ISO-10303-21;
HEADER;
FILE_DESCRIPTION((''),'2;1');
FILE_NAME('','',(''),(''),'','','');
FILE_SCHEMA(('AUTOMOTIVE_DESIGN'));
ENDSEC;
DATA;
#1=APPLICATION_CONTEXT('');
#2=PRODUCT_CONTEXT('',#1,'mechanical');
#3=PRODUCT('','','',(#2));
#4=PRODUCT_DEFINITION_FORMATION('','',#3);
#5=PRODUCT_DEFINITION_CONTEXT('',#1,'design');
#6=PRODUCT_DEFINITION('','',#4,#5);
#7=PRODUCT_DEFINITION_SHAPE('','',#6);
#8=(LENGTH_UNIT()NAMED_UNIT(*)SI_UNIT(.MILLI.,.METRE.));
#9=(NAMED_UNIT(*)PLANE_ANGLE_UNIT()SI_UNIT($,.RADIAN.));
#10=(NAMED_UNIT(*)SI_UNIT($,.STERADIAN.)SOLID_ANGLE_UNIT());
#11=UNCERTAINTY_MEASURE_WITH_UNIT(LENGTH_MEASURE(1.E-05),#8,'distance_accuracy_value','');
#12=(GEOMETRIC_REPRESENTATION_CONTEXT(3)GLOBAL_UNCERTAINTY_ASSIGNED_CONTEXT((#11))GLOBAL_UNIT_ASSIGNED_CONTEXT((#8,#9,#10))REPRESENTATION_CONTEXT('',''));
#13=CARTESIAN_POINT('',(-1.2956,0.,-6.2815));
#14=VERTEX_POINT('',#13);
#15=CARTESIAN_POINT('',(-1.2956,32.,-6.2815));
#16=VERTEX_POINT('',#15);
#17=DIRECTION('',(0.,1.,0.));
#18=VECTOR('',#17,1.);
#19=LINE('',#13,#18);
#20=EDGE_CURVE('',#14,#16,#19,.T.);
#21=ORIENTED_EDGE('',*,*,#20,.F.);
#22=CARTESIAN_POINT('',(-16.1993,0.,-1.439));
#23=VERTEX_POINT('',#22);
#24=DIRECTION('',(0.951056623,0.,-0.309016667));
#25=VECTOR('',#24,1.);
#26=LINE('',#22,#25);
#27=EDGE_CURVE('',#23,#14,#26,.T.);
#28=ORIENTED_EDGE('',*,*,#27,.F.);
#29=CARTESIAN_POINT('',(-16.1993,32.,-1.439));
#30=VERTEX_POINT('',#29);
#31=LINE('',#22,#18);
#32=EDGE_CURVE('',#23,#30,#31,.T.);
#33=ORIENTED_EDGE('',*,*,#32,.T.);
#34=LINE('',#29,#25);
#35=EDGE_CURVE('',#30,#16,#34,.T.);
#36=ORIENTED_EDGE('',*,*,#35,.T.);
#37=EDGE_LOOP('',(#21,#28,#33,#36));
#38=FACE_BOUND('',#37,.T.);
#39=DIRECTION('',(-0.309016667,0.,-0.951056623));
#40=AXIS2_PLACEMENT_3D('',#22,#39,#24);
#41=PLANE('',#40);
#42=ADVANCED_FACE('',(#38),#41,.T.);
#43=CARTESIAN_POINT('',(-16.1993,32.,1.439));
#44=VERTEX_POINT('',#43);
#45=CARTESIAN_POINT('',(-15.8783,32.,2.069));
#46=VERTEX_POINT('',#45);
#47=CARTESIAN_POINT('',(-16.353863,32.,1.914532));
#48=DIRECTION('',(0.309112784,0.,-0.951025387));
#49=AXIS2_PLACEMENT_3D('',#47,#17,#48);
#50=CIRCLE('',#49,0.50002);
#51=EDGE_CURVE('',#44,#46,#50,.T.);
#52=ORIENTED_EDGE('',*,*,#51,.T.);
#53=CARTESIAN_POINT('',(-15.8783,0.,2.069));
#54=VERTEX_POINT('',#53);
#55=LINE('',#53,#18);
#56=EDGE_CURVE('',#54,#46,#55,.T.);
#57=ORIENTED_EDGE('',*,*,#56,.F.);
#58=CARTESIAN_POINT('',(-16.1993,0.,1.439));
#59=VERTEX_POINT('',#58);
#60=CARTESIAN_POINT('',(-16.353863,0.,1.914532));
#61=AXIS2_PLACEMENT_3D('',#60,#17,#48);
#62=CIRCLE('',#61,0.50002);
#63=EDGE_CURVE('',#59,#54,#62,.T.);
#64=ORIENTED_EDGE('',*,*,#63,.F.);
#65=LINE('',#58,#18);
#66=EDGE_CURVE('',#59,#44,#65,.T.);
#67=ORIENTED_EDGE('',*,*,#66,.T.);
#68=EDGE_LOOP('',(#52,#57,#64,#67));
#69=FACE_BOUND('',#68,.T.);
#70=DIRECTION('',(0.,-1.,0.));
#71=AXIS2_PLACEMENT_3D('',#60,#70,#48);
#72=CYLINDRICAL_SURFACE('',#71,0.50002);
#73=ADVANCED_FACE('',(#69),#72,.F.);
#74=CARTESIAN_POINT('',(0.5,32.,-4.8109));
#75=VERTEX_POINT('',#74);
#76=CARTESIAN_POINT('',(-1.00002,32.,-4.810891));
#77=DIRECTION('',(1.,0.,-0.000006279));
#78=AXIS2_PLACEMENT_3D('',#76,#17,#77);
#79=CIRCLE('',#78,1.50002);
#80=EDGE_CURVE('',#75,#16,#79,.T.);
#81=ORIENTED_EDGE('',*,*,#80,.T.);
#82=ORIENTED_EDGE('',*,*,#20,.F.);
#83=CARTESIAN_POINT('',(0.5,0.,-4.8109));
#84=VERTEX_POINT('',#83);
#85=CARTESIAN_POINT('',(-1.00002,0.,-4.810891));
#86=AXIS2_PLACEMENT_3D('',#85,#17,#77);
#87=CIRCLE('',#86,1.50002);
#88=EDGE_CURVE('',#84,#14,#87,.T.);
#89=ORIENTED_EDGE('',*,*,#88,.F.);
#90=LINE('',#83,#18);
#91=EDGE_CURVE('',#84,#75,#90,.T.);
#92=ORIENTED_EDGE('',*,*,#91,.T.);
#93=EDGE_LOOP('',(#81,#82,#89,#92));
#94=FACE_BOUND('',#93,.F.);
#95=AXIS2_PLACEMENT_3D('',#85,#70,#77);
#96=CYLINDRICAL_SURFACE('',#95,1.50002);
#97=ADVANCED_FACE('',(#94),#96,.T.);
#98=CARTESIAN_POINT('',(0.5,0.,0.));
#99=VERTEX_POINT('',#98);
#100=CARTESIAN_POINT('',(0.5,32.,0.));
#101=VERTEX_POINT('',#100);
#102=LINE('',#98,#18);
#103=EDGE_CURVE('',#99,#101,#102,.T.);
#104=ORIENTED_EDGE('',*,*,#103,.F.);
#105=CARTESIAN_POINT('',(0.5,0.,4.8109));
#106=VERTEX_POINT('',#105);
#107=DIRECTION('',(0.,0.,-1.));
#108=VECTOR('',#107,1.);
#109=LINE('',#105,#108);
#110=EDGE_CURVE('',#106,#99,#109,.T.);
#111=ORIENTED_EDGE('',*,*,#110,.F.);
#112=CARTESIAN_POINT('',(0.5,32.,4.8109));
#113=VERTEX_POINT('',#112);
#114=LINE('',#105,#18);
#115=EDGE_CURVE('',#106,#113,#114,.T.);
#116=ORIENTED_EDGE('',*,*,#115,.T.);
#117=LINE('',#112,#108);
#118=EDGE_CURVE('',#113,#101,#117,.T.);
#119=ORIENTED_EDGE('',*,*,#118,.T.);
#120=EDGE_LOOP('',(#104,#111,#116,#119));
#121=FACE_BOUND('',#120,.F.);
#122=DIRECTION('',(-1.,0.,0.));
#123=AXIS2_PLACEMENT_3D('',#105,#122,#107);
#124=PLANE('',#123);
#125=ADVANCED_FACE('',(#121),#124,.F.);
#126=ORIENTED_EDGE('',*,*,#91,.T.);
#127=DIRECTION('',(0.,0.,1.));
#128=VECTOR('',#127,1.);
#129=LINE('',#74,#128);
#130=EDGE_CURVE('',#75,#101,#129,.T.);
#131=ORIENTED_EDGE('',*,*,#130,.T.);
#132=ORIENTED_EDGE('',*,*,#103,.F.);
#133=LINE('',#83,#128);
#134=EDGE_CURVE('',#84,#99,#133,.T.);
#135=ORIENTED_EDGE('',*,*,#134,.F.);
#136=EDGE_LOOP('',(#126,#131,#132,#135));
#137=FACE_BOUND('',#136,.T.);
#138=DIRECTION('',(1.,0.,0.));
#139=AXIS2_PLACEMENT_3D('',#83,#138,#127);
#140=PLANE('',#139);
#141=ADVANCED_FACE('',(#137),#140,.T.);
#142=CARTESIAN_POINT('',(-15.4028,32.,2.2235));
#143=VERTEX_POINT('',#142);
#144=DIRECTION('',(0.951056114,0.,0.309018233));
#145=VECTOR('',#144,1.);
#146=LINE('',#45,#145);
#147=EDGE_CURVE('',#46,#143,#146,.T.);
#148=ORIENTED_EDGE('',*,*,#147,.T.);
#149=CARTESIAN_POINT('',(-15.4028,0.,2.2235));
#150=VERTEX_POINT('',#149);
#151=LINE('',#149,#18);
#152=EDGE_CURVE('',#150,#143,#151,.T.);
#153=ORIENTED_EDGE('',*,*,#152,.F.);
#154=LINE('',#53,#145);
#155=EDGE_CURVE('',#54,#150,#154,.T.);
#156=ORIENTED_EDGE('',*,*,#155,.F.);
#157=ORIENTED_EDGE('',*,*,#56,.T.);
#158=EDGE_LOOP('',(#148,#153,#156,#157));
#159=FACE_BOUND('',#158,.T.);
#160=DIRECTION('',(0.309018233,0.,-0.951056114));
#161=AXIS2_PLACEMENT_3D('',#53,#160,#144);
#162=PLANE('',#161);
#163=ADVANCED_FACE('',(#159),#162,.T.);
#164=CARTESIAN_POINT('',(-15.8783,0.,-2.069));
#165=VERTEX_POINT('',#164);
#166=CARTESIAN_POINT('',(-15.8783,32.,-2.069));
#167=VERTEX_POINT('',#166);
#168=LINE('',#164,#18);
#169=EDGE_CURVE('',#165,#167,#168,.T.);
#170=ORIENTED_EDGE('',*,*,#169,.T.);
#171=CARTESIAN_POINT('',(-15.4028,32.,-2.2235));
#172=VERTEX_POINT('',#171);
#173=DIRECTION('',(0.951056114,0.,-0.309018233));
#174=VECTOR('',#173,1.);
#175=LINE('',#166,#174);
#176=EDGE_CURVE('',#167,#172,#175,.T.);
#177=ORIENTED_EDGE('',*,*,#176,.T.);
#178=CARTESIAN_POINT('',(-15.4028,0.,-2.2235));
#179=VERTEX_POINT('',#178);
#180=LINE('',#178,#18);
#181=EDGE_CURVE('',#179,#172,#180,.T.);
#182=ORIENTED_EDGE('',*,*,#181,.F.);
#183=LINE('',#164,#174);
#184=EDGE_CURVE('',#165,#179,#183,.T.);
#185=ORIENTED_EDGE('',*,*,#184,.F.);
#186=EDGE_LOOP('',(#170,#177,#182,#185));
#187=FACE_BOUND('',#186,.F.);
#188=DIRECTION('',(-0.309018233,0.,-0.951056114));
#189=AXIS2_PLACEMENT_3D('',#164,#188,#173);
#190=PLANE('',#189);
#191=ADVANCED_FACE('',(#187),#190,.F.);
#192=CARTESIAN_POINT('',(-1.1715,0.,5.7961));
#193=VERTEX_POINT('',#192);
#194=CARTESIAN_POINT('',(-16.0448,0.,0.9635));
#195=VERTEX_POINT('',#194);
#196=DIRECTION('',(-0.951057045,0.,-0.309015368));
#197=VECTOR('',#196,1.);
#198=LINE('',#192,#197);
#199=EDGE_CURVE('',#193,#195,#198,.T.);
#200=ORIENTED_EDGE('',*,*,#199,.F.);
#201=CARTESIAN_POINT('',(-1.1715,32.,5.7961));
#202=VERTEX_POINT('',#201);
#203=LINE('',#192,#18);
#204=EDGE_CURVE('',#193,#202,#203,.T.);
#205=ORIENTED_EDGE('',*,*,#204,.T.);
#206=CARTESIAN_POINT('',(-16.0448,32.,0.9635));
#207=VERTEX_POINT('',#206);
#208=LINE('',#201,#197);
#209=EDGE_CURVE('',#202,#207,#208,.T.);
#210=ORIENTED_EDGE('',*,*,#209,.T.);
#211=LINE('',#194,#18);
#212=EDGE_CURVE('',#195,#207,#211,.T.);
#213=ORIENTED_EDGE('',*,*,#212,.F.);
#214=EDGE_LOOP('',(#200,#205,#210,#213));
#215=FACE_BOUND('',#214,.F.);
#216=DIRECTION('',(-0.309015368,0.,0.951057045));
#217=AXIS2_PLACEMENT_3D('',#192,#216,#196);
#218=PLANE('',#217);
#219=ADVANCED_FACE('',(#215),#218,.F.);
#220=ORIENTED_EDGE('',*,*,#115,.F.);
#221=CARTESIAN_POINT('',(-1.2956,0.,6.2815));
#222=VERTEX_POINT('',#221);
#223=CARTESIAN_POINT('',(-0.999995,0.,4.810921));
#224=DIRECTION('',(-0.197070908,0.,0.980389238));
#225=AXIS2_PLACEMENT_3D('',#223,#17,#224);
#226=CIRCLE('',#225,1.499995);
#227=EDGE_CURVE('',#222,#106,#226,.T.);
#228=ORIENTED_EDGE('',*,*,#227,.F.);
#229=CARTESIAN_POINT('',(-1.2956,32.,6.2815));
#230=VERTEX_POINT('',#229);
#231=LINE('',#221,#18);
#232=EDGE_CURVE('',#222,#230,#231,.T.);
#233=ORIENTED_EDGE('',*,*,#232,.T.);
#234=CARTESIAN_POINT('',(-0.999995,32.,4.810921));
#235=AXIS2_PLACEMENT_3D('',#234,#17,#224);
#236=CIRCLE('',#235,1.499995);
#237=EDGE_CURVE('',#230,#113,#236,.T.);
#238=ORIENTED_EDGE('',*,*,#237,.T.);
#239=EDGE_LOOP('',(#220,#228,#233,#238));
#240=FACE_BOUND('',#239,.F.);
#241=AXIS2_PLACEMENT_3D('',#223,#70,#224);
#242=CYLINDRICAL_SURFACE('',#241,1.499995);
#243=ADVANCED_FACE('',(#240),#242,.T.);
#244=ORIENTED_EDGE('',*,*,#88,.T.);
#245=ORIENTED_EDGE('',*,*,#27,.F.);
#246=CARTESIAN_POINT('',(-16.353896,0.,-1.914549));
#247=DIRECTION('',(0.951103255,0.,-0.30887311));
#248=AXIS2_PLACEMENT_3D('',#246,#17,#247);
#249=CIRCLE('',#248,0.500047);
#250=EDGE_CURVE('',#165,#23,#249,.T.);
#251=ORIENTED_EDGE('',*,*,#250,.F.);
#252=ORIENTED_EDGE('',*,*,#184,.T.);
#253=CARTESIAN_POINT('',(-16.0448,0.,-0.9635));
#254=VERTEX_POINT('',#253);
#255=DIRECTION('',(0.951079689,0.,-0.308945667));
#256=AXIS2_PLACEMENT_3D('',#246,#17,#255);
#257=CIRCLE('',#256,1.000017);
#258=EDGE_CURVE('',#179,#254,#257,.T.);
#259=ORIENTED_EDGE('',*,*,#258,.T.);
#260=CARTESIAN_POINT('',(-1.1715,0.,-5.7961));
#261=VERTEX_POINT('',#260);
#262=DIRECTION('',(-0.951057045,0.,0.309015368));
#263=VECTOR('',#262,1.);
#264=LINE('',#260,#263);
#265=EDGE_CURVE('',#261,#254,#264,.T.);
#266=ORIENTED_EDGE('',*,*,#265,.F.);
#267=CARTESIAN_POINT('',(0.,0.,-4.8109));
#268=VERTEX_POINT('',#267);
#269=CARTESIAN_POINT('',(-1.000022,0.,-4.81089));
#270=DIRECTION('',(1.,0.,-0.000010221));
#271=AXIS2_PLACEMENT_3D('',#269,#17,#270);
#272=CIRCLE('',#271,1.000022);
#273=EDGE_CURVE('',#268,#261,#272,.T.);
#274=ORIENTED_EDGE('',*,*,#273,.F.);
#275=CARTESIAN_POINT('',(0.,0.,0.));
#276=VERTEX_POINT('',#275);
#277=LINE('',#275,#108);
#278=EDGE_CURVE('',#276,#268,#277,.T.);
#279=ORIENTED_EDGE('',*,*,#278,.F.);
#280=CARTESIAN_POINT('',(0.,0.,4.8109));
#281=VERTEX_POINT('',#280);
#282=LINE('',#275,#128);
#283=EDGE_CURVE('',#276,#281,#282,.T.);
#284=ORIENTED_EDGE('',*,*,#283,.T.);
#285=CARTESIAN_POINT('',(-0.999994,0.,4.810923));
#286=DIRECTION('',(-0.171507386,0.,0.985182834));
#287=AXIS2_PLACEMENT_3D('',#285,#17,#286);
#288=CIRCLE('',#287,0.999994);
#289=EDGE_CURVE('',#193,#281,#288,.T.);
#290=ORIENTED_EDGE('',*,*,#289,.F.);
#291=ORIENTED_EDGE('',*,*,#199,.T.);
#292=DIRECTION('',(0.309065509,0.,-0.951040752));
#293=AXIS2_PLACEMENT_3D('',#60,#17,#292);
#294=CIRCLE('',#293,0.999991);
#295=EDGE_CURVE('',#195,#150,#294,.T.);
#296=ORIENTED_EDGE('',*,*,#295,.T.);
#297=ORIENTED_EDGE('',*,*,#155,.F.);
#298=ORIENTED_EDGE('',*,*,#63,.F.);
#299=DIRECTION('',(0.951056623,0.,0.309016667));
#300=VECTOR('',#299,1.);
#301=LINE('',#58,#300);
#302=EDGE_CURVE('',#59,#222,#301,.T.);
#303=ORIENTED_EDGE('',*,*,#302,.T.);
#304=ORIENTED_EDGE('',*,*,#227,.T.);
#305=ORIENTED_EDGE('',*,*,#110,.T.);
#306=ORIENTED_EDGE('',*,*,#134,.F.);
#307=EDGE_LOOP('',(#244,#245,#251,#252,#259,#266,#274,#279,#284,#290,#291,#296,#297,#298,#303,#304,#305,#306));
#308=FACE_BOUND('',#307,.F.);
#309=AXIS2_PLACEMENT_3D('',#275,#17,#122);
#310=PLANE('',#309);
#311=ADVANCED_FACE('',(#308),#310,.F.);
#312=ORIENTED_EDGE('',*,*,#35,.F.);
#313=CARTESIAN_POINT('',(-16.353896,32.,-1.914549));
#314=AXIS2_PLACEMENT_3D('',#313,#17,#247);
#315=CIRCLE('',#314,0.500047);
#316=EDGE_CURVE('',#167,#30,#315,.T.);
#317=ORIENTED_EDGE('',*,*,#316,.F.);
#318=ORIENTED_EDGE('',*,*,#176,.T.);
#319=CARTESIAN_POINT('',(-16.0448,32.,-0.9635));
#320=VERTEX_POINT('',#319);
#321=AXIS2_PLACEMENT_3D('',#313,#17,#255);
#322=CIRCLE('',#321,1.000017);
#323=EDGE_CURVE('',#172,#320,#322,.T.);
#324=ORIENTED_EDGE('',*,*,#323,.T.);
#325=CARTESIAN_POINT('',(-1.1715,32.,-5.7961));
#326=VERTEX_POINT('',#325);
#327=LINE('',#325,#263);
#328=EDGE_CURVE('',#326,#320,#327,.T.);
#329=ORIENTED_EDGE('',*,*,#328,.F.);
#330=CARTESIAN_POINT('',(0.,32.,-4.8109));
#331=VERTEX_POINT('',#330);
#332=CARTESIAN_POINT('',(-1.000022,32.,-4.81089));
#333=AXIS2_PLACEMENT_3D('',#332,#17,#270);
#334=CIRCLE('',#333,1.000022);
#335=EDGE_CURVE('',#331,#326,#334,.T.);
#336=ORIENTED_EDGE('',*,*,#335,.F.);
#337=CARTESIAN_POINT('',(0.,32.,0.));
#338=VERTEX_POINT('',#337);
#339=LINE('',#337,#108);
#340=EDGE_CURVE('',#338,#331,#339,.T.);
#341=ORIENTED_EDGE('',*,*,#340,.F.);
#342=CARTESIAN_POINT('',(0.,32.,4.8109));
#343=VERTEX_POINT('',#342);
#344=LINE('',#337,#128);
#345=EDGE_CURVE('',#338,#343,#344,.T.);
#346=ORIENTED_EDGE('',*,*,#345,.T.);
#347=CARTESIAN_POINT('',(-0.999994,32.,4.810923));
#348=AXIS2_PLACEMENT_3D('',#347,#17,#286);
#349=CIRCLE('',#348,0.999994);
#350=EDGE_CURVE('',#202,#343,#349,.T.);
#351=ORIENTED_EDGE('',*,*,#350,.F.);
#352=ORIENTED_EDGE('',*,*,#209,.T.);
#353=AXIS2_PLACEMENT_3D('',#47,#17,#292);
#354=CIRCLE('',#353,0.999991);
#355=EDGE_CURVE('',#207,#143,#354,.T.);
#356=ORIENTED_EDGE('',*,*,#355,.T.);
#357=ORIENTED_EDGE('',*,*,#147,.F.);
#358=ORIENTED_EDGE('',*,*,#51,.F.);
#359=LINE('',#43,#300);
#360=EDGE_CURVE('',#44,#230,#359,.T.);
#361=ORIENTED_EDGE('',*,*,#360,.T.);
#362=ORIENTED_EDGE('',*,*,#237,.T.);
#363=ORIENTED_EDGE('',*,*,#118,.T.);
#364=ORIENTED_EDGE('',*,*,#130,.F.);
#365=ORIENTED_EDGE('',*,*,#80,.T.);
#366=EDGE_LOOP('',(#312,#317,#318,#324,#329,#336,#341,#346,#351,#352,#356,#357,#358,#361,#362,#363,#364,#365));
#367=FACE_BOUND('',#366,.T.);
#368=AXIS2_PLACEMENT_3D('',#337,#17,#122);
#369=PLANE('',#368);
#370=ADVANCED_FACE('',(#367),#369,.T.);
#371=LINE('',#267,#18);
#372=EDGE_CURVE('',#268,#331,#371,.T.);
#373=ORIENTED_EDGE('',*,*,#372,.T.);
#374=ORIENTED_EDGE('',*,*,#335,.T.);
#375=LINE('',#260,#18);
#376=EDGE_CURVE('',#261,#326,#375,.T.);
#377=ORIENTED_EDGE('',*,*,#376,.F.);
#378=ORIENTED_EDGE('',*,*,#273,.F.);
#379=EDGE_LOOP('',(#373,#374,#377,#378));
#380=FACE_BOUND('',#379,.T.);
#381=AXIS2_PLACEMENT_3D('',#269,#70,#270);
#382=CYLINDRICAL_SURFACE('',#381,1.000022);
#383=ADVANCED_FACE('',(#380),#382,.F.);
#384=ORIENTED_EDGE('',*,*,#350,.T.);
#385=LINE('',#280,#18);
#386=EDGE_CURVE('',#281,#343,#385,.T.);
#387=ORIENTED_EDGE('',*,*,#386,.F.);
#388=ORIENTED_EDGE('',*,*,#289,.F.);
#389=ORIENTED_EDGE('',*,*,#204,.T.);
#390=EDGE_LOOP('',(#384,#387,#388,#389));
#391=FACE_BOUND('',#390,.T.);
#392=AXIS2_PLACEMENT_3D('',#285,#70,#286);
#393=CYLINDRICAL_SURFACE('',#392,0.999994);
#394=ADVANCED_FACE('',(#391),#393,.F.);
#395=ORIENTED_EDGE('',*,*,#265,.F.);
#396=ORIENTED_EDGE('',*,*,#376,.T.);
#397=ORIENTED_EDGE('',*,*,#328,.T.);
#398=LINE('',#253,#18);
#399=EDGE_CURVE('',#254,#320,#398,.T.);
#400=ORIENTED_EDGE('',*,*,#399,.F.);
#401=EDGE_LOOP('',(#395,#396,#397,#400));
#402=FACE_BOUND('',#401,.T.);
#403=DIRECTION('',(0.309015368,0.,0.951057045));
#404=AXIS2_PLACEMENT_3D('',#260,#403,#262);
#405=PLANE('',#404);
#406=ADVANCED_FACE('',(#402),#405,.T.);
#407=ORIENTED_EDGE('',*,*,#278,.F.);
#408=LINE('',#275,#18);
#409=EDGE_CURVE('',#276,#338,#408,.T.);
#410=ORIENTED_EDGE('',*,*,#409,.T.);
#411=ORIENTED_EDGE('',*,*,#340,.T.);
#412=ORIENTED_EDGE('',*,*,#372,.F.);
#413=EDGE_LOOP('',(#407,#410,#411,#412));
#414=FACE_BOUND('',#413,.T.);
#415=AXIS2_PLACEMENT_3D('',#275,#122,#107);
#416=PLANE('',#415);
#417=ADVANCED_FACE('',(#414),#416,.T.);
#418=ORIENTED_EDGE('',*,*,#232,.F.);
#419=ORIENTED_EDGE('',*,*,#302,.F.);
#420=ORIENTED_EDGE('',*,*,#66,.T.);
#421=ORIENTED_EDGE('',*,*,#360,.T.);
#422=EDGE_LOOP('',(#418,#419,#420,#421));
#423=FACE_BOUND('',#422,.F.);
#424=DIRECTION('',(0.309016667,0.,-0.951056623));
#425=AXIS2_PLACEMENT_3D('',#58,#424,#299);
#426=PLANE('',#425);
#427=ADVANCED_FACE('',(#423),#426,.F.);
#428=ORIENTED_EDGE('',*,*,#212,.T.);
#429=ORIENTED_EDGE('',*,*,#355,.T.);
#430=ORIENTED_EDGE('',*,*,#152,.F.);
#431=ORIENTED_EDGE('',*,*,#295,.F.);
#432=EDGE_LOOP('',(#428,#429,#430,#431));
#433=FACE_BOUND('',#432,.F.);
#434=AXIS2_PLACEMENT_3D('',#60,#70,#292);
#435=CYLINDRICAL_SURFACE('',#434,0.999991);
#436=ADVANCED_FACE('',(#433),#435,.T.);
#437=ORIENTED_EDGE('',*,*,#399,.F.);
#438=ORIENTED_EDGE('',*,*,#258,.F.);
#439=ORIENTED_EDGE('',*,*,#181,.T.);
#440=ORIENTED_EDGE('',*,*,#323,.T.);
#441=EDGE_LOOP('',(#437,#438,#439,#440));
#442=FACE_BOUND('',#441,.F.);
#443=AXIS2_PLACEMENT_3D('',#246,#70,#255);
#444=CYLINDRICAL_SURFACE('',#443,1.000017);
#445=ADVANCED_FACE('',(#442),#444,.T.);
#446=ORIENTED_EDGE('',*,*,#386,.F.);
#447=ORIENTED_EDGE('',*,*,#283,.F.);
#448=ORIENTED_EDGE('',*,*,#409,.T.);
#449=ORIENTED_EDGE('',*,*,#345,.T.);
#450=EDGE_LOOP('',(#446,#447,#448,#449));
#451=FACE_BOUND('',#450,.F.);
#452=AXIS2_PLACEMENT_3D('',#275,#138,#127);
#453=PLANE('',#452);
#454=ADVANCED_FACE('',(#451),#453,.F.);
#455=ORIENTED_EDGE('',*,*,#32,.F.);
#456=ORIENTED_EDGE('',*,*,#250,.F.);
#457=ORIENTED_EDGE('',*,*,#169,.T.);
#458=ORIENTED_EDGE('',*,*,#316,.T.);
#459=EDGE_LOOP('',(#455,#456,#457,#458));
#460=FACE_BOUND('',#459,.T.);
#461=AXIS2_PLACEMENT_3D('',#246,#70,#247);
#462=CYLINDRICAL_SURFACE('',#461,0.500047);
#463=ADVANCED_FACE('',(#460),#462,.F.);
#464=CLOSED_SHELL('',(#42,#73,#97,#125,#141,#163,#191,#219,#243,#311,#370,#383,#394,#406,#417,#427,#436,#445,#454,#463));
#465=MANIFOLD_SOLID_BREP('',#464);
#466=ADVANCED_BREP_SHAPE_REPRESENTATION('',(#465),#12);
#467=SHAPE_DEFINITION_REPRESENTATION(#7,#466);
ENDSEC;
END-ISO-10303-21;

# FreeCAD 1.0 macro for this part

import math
import FreeCAD as App
import Part
import Sketcher
from FreeCAD import Vector
Q = App.Units.Quantity

doc = App.newDocument("Part")
body = doc.addObject("PartDesign::Body", "Body")

# Sketch on XZ plane
sketch1 = doc.addObject("Sketcher::SketchObject", "Sketch")
body.addObject(sketch1)
sketch1.AttachmentSupport = (doc.XZ_Plane, [""])
sketch1.MapMode = "FlatFace"
sketch1.addGeometry([
    Part.LineSegment(Vector(0, -4.81, 0), Vector(0, 4.81, 0)),  # 0
    Part.ArcOfCircle(Part.Circle(Vector(-1, 4.81, 0), Vector(0, 0, 1), 1), math.radians(0), math.radians(100)),  # 1
    Part.LineSegment(Vector(-1.17, 5.8, 0), Vector(-16.04, 0.96, 0)),  # 2
    Part.ArcOfCircle(Part.Circle(Vector(-16.35, 1.91, 0), Vector(0, 0, 1), 1), math.radians(18), math.radians(288)),  # 3
    Part.LineSegment(Vector(-15.4, 2.22, 0), Vector(-15.88, 2.07, 0)),  # 4
    Part.ArcOfCircle(Part.Circle(Vector(-16.35, 1.91, 0), Vector(0, 0, 1), 0.5), math.radians(18), math.radians(288)),  # 5
    Part.LineSegment(Vector(-16.2, 1.44, 0), Vector(-1.3, 6.28, 0)),  # 6
    Part.ArcOfCircle(Part.Circle(Vector(-1, 4.81, 0), Vector(0, 0, 1), 1.5), math.radians(0), math.radians(101)),  # 7
    Part.LineSegment(Vector(0.5, 4.81, 0), Vector(0.5, -4.81, 0)),  # 8
    Part.ArcOfCircle(Part.Circle(Vector(-1, -4.81, 0), Vector(0, 0, 1), 1.5), math.radians(-101), math.radians(0)),  # 9
    Part.LineSegment(Vector(-1.3, -6.28, 0), Vector(-16.2, -1.44, 0)),  # 10
    Part.ArcOfCircle(Part.Circle(Vector(-16.35, -1.91, 0), Vector(0, 0, 1), 0.5), math.radians(72), math.radians(342)),  # 11
    Part.LineSegment(Vector(-15.88, -2.07, 0), Vector(-15.4, -2.22, 0)),  # 12
    Part.ArcOfCircle(Part.Circle(Vector(-16.35, -1.91, 0), Vector(0, 0, 1), 1), math.radians(72), math.radians(342)),  # 13
    Part.LineSegment(Vector(-16.04, -0.96, 0), Vector(-1.17, -5.8, 0)),  # 14
    Part.ArcOfCircle(Part.Circle(Vector(-1, -4.81, 0), Vector(0, 0, 1), 1), math.radians(-100), math.radians(0)),  # 15
], False)
sketch1.addConstraint([
    Sketcher.Constraint("Tangent", 0, 2, 1, 1),
    Sketcher.Constraint("Coincident", 1, 2, 2, 1),
    Sketcher.Constraint("Tangent", 2, 2, 3, 2),
    Sketcher.Constraint("Coincident", 3, 1, 4, 1),
    Sketcher.Constraint("Coincident", 4, 2, 5, 1),
    Sketcher.Constraint("Tangent", 5, 2, 6, 1),
    Sketcher.Constraint("Coincident", 6, 2, 7, 2),
    Sketcher.Constraint("Tangent", 7, 1, 8, 1),
    Sketcher.Constraint("Tangent", 8, 2, 9, 2),
    Sketcher.Constraint("Coincident", 9, 1, 10, 1),
    Sketcher.Constraint("Tangent", 10, 2, 11, 1),
    Sketcher.Constraint("Coincident", 11, 2, 12, 1),
    Sketcher.Constraint("Coincident", 12, 2, 13, 2),
    Sketcher.Constraint("Tangent", 13, 1, 14, 1),
    Sketcher.Constraint("Coincident", 14, 2, 15, 1),
    Sketcher.Constraint("Tangent", 15, 2, 0, 1),
    Sketcher.Constraint("Vertical", 0),
    Sketcher.Constraint("Vertical", 8),
    Sketcher.Constraint("Coincident", 5, 3, 3, 3),
    Sketcher.Constraint("Coincident", 7, 3, 1, 3),
    Sketcher.Constraint("Coincident", 13, 3, 11, 3),
    Sketcher.Constraint("Coincident", 15, 3, 9, 3),
    Sketcher.Constraint("Equal", 1, 3),
    Sketcher.Constraint("Equal", 7, 9),
    Sketcher.Constraint("Equal", 5, 11),
    Sketcher.Constraint("Equal", 3, 13),
    Sketcher.Constraint("Symmetric", 0, 2, 15, 2, -1, 1),
    Sketcher.Constraint("Symmetric", 3, 3, 11, 3, -1),
    Sketcher.Constraint("Parallel", 2, 4),
    Sketcher.Constraint("Parallel", 4, 6),
    Sketcher.Constraint("Parallel", 10, 12),
    Sketcher.Constraint("Parallel", 12, 14),
    Sketcher.Constraint("Vertical", 6, 2, 9, 1),
    Sketcher.Constraint("Vertical", 4, 2, 11, 2),
    Sketcher.Constraint("Radius", 1, 1.0),
    Sketcher.Constraint("Radius", 5, 0.5),
    Sketcher.Constraint("Radius", 7, 1.5),
    Sketcher.Constraint("Angle", 6, Q("18 deg")),
    Sketcher.Constraint("DistanceY", -1, 1, 1, 3, 4.811),
    Sketcher.Constraint("DistanceY", 2, 2, 3, 1, 1.26),
    Sketcher.Constraint("DistanceX", 3, 3, -1, 1, 16.354),
    Sketcher.Constraint("DistanceY", -1, 1, 1, 2, 5.796),
])
pad1 = doc.addObject("PartDesign::Pad", "Pad")
body.addObject(pad1)
pad1.Profile = sketch1
pad1.Length = 32
pad1.Reversed = True

doc.recompute()
